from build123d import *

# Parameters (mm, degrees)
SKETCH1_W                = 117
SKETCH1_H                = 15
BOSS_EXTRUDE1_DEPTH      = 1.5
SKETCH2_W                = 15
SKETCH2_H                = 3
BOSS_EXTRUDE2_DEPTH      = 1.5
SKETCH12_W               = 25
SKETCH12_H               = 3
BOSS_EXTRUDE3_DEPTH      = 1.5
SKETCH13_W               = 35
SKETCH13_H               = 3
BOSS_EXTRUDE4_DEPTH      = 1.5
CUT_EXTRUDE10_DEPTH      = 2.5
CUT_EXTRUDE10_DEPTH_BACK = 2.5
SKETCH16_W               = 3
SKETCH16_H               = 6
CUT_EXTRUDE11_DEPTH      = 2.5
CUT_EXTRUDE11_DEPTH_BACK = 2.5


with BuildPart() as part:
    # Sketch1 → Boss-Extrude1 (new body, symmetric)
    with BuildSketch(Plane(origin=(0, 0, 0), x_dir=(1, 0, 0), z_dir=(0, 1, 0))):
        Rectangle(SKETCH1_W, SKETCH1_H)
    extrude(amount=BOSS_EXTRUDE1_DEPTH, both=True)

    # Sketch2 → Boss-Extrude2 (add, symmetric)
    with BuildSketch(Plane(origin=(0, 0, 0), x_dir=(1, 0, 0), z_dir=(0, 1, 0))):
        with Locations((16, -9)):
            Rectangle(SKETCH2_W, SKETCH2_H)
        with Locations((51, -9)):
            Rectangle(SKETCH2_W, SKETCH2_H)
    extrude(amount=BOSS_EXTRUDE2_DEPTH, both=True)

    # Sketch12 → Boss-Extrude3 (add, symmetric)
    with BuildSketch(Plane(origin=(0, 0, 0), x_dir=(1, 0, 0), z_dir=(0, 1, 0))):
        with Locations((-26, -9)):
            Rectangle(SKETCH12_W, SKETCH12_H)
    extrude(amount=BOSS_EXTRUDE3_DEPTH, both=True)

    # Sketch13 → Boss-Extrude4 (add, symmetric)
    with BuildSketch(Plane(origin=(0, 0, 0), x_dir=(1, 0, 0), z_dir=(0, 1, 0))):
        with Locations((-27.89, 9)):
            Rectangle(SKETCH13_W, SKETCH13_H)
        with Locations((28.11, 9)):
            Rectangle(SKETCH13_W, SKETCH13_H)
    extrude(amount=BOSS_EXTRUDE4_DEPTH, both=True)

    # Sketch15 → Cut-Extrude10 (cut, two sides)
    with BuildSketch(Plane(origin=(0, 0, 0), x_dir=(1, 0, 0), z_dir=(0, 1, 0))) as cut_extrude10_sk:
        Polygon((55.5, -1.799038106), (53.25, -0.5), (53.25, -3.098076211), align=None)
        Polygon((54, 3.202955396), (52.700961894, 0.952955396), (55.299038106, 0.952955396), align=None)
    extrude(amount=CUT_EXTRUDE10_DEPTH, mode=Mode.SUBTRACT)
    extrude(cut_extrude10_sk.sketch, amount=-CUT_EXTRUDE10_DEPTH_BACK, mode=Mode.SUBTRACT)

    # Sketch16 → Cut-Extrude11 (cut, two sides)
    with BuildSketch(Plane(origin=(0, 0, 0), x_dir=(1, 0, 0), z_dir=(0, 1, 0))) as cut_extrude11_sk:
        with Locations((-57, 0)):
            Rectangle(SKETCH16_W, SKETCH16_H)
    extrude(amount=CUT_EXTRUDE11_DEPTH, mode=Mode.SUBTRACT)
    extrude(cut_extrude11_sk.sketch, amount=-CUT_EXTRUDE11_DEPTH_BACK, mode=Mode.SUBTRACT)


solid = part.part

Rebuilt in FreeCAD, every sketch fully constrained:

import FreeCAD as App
import Part
import Sketcher
from FreeCAD import Vector
Q = App.Units.Quantity


def add_polygon(sketch, points):
    """Adds a closed chain of lines whose ends are joined by coincident constraints."""
    first, n = sketch.GeometryCount, len(points)
    for a, b in zip(points, points[1:] + points[:1]):
        sketch.addGeometry(Part.LineSegment(App.Vector(*a, 0), App.Vector(*b, 0)), False)
    for i in range(n):
        sketch.addConstraint(Sketcher.Constraint("Coincident", first + i, 2, first + (i + 1) % n, 1))

doc = App.newDocument("Part")
params = doc.addObject("Spreadsheet::Sheet", "Params")
for row, (alias, value) in enumerate([
    ("sketch1_width", "117 mm"),
    ("sketch1_height", "15 mm"),
    ("pad1_length", "3 mm"),
    ("sketch2_width", "15 mm"),
    ("sketch2_height", "3 mm"),
    ("pad2_length", "3 mm"),
    ("sketch3_width", "25 mm"),
    ("sketch3_height", "3 mm"),
    ("pad3_length", "3 mm"),
    ("sketch4_width", "35 mm"),
    ("sketch4_height", "3 mm"),
    ("pad4_length", "3 mm"),
    ("sketch6_width", "3 mm"),
    ("sketch6_height", "6 mm"),
], start=1):
    params.set(f"A{row}", alias)
    params.set(f"B{row}", "=" + value)
    params.setAlias(f"B{row}", alias)

body = doc.addObject("PartDesign::Body", "Body")

# Sketch on XZ plane
sketch1 = doc.addObject("Sketcher::SketchObject", "Sketch")
body.addObject(sketch1)
sketch1.AttachmentSupport = (doc.XZ_Plane, [""])
sketch1.MapMode = "FlatFace"
add_polygon(sketch1, [(-58, -8), (-58, 8), (58, 8), (58, -8)])  # lines 0-3
sketch1.addConstraint([
    Sketcher.Constraint("Vertical", 0),
    Sketcher.Constraint("Horizontal", 1),
    Sketcher.Constraint("Vertical", 2),
    Sketcher.Constraint("Horizontal", 3),
    Sketcher.Constraint("Symmetric", 0, 2, 2, 2, -1, 1),
    Sketcher.Constraint("DistanceX", 1, 1, 1, 2, 117.0),
    Sketcher.Constraint("DistanceY", 0, 1, 0, 2, 15.0),
])
sketch1.setExpression("Constraints[9]", "Params.sketch1_width")
sketch1.setExpression("Constraints[10]", "Params.sketch1_height")
pad1 = doc.addObject("PartDesign::Pad", "Pad")
body.addObject(pad1)
pad1.Profile = sketch1
pad1.setExpression("Length", "Params.pad1_length")
pad1.Midplane = True

# Sketch on XZ plane
sketch2 = doc.addObject("Sketcher::SketchObject", "Sketch001")
body.addObject(sketch2)
sketch2.AttachmentSupport = (doc.XZ_Plane, [""])
sketch2.MapMode = "FlatFace"
add_polygon(sketch2, [(8.5, 7.5), (8.5, 10.5), (23.5, 10.5), (23.5, 7.5)])  # lines 0-3
add_polygon(sketch2, [(43.5, 7.5), (43.5, 10.5), (58.5, 10.5), (58.5, 7.5)])  # lines 4-7
sketch2.addConstraint([
    Sketcher.Constraint("Vertical", 0),
    Sketcher.Constraint("Horizontal", 1),
    Sketcher.Constraint("Vertical", 2),
    Sketcher.Constraint("Horizontal", 3),
    Sketcher.Constraint("Vertical", 4),
    Sketcher.Constraint("Horizontal", 5),
    Sketcher.Constraint("Vertical", 6),
    Sketcher.Constraint("Horizontal", 7),
    Sketcher.Constraint("Horizontal", 1, 2, 4, 2),
    Sketcher.Constraint("Horizontal", 3, 2, 6, 2),
    Sketcher.Constraint("Equal", 3, 5),
    Sketcher.Constraint("DistanceX", 1, 1, 1, 2, 15.0),
    Sketcher.Constraint("DistanceY", 0, 1, 0, 2, 3.0),
    Sketcher.Constraint("DistanceX", 1, 2, 4, 2, 20.0),
    Sketcher.Constraint("DistanceX", -1, 1, 0, 2, 8.5),
    Sketcher.Constraint("DistanceY", -1, 1, 0, 2, 10.5),
])
sketch2.setExpression("Constraints[19]", "Params.sketch2_width")
sketch2.setExpression("Constraints[20]", "Params.sketch2_height")
pad2 = doc.addObject("PartDesign::Pad", "Pad001")
body.addObject(pad2)
pad2.Profile = sketch2
pad2.setExpression("Length", "Params.pad2_length")
pad2.Midplane = True

# Sketch on XZ plane
sketch3 = doc.addObject("Sketcher::SketchObject", "Sketch002")
body.addObject(sketch3)
sketch3.AttachmentSupport = (doc.XZ_Plane, [""])
sketch3.MapMode = "FlatFace"
add_polygon(sketch3, [(-38.5, 7.5), (-38.5, 10.5), (-13.5, 10.5), (-13.5, 7.5)])  # lines 0-3
sketch3.addConstraint([
    Sketcher.Constraint("Vertical", 0),
    Sketcher.Constraint("Horizontal", 1),
    Sketcher.Constraint("Vertical", 2),
    Sketcher.Constraint("Horizontal", 3),
    Sketcher.Constraint("DistanceX", 1, 1, 1, 2, 25.0),
    Sketcher.Constraint("DistanceY", 0, 1, 0, 2, 3.0),
    Sketcher.Constraint("DistanceX", 0, 2, -1, 1, 38.5),
    Sketcher.Constraint("DistanceY", -1, 1, 0, 2, 10.5),
])
sketch3.setExpression("Constraints[8]", "Params.sketch3_width")
sketch3.setExpression("Constraints[9]", "Params.sketch3_height")
pad3 = doc.addObject("PartDesign::Pad", "Pad002")
body.addObject(pad3)
pad3.Profile = sketch3
pad3.setExpression("Length", "Params.pad3_length")
pad3.Midplane = True

# Sketch on XZ plane
sketch4 = doc.addObject("Sketcher::SketchObject", "Sketch003")
body.addObject(sketch4)
sketch4.AttachmentSupport = (doc.XZ_Plane, [""])
sketch4.MapMode = "FlatFace"
add_polygon(sketch4, [(-45.4, -10.5), (-45.4, -7.5), (-10.4, -7.5), (-10.4, -10.5)])  # lines 0-3
add_polygon(sketch4, [(10.6, -10.5), (10.6, -7.5), (45.6, -7.5), (45.6, -10.5)])  # lines 4-7
sketch4.addConstraint([
    Sketcher.Constraint("Vertical", 0),
    Sketcher.Constraint("Horizontal", 1),
    Sketcher.Constraint("Vertical", 2),
    Sketcher.Constraint("Horizontal", 3),
    Sketcher.Constraint("Vertical", 4),
    Sketcher.Constraint("Horizontal", 5),
    Sketcher.Constraint("Vertical", 6),
    Sketcher.Constraint("Horizontal", 7),
    Sketcher.Constraint("Horizontal", 1, 2, 4, 2),
    Sketcher.Constraint("Horizontal", 3, 2, 6, 2),
    Sketcher.Constraint("Equal", 3, 5),
    Sketcher.Constraint("DistanceX", 1, 1, 1, 2, 35.0),
    Sketcher.Constraint("DistanceY", 0, 1, 0, 2, 3.0),
    Sketcher.Constraint("DistanceX", 1, 2, 4, 2, 21.0),
    Sketcher.Constraint("DistanceY", 0, 2, -1, 1, 7.5),
    Sketcher.Constraint("DistanceX", 0, 2, -1, 1, 45.39),
])
sketch4.setExpression("Constraints[19]", "Params.sketch4_width")
sketch4.setExpression("Constraints[20]", "Params.sketch4_height")
pad4 = doc.addObject("PartDesign::Pad", "Pad003")
body.addObject(pad4)
pad4.Profile = sketch4
pad4.setExpression("Length", "Params.pad4_length")
pad4.Midplane = True

# Sketch on XZ plane
sketch5 = doc.addObject("Sketcher::SketchObject", "Sketch004")
body.addObject(sketch5)
sketch5.AttachmentSupport = (doc.XZ_Plane, [""])
sketch5.MapMode = "FlatFace"
add_polygon(sketch5, [(55.5, 1.8), (53.2, 0.5), (53.2, 3.1)])  # lines 0-2
add_polygon(sketch5, [(54, -3.2), (52.7, -1), (55.3, -1)])  # lines 3-5
sketch5.addConstraint([
    Sketcher.Constraint("Vertical", 1),
    Sketcher.Constraint("Horizontal", 4),
    Sketcher.Constraint("Perpendicular", 0, 3),
    Sketcher.Constraint("Perpendicular", 2, 5),
    Sketcher.Constraint("Equal", 4, 1),
    Sketcher.Constraint("Equal", 0, 2),
    Sketcher.Constraint("Angle", 0, Q("-150 deg")),
    Sketcher.Constraint("DistanceX", -1, 1, 5, 2, 54.0),
    Sketcher.Constraint("DistanceY", -1, 1, 0, 2, 0.5),
    Sketcher.Constraint("DistanceX", -1, 1, 2, 2, 55.5),
    Sketcher.Constraint("DistanceX", -1, 1, 0, 2, 53.25),
    Sketcher.Constraint("DistanceY", 3, 2, 1, 2, 4.051032),
])
pocket1 = doc.addObject("PartDesign::Pocket", "Pocket")
body.addObject(pocket1)
pocket1.Profile = sketch5
pocket1.Type = "ThroughAll"
pocket1.Midplane = True

# Sketch on XZ plane
sketch6 = doc.addObject("Sketcher::SketchObject", "Sketch005")
body.addObject(sketch6)
sketch6.AttachmentSupport = (doc.XZ_Plane, [""])
sketch6.MapMode = "FlatFace"
add_polygon(sketch6, [(-58.5, -3), (-58.5, 3), (-55.5, 3), (-55.5, -3)])  # lines 0-3
sketch6.addConstraint([
    Sketcher.Constraint("Vertical", 0),
    Sketcher.Constraint("Horizontal", 1),
    Sketcher.Constraint("Vertical", 2),
    Sketcher.Constraint("Horizontal", 3),
    Sketcher.Constraint("DistanceX", 1, 1, 1, 2, 3.0),
    Sketcher.Constraint("DistanceY", 0, 1, 0, 2, 6.0),
    Sketcher.Constraint("DistanceY", -1, 1, 0, 2, 3.0),
    Sketcher.Constraint("DistanceX", 0, 2, -1, 1, 58.5),
])
sketch6.setExpression("Constraints[8]", "Params.sketch6_width")
sketch6.setExpression("Constraints[9]", "Params.sketch6_height")
pocket2 = doc.addObject("PartDesign::Pocket", "Pocket001")
body.addObject(pocket2)
pocket2.Profile = sketch6
pocket2.Type = "ThroughAll"
pocket2.Midplane = True

doc.recompute()
